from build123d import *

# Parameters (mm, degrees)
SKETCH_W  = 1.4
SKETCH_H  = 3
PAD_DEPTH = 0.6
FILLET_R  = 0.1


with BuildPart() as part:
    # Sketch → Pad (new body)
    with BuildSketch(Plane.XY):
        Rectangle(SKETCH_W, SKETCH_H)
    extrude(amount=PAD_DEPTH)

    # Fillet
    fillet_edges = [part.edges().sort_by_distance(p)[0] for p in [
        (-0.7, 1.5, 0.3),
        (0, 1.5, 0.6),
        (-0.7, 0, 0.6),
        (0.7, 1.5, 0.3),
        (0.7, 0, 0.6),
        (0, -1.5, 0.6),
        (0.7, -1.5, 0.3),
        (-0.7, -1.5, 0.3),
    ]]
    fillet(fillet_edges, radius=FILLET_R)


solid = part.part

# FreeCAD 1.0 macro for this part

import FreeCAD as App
import Part
import Sketcher
from FreeCAD import Vector


def edges_at(feature, points):
    """Names of the edges that pass closest to the given points."""
    edges = feature.Shape.Edges
    near = lambda p: min(range(len(edges)), key=lambda i: edges[i].distToShape(Part.Vertex(*p))[0])
    return sorted({f"Edge{near(p) + 1}" for p in points})

doc = App.newDocument("Part")
body = doc.addObject("PartDesign::Body", "Body")

sketch1 = body.newObject("Sketcher::SketchObject", "Sketch")
sketch1.AttachmentSupport = (doc.getObject("XY_Plane"), [""])
sketch1.MapMode = "FlatFace"
sketch1.addGeometry([
    Part.LineSegment(Vector(-0.7, 1.5, 0), Vector(-0.7, -1.5, 0)),
    Part.LineSegment(Vector(-0.7, -1.5, 0), Vector(0.7, -1.5, 0)),
    Part.LineSegment(Vector(0.7, -1.5, 0), Vector(0.7, 1.5, 0)),
    Part.LineSegment(Vector(0.7, 1.5, 0), Vector(-0.7, 1.5, 0)),
], False)
sketch1.addConstraint([
    Sketcher.Constraint("Coincident", 0, 2, 1, 1),
    Sketcher.Constraint("Coincident", 1, 2, 2, 1),
    Sketcher.Constraint("Coincident", 2, 2, 3, 1),
    Sketcher.Constraint("Coincident", 3, 2, 0, 1),
    Sketcher.Constraint("Vertical", 0),
    Sketcher.Constraint("Horizontal", 1),
    Sketcher.Constraint("Vertical", 2),
    Sketcher.Constraint("Horizontal", 3),
    Sketcher.Constraint("Symmetric", 0, 2, 2, 2, -1, 1),
    Sketcher.Constraint("DistanceY", 0, 2, 0, 1, 3.0),
    Sketcher.Constraint("DistanceX", 1, 1, 1, 2, 1.4),
])
pad1 = body.newObject("PartDesign::Pad", "Pad")
pad1.Profile = sketch1
pad1.Length = 0.6
doc.recompute()

fillet = body.newObject("PartDesign::Fillet", "Fillet")
fillet.Base = (pad1, edges_at(pad1, [
    (-0.7, 1.5, 0.3),
    (0, 1.5, 0.6),
    (-0.7, 0, 0.6),
    (0.7, 1.5, 0.3),
    (0.7, 0, 0.6),
    (0, -1.5, 0.6),
    (0.7, -1.5, 0.3),
    (-0.7, -1.5, 0.3),
]))
fillet.Radius = 0.1

doc.recompute()
